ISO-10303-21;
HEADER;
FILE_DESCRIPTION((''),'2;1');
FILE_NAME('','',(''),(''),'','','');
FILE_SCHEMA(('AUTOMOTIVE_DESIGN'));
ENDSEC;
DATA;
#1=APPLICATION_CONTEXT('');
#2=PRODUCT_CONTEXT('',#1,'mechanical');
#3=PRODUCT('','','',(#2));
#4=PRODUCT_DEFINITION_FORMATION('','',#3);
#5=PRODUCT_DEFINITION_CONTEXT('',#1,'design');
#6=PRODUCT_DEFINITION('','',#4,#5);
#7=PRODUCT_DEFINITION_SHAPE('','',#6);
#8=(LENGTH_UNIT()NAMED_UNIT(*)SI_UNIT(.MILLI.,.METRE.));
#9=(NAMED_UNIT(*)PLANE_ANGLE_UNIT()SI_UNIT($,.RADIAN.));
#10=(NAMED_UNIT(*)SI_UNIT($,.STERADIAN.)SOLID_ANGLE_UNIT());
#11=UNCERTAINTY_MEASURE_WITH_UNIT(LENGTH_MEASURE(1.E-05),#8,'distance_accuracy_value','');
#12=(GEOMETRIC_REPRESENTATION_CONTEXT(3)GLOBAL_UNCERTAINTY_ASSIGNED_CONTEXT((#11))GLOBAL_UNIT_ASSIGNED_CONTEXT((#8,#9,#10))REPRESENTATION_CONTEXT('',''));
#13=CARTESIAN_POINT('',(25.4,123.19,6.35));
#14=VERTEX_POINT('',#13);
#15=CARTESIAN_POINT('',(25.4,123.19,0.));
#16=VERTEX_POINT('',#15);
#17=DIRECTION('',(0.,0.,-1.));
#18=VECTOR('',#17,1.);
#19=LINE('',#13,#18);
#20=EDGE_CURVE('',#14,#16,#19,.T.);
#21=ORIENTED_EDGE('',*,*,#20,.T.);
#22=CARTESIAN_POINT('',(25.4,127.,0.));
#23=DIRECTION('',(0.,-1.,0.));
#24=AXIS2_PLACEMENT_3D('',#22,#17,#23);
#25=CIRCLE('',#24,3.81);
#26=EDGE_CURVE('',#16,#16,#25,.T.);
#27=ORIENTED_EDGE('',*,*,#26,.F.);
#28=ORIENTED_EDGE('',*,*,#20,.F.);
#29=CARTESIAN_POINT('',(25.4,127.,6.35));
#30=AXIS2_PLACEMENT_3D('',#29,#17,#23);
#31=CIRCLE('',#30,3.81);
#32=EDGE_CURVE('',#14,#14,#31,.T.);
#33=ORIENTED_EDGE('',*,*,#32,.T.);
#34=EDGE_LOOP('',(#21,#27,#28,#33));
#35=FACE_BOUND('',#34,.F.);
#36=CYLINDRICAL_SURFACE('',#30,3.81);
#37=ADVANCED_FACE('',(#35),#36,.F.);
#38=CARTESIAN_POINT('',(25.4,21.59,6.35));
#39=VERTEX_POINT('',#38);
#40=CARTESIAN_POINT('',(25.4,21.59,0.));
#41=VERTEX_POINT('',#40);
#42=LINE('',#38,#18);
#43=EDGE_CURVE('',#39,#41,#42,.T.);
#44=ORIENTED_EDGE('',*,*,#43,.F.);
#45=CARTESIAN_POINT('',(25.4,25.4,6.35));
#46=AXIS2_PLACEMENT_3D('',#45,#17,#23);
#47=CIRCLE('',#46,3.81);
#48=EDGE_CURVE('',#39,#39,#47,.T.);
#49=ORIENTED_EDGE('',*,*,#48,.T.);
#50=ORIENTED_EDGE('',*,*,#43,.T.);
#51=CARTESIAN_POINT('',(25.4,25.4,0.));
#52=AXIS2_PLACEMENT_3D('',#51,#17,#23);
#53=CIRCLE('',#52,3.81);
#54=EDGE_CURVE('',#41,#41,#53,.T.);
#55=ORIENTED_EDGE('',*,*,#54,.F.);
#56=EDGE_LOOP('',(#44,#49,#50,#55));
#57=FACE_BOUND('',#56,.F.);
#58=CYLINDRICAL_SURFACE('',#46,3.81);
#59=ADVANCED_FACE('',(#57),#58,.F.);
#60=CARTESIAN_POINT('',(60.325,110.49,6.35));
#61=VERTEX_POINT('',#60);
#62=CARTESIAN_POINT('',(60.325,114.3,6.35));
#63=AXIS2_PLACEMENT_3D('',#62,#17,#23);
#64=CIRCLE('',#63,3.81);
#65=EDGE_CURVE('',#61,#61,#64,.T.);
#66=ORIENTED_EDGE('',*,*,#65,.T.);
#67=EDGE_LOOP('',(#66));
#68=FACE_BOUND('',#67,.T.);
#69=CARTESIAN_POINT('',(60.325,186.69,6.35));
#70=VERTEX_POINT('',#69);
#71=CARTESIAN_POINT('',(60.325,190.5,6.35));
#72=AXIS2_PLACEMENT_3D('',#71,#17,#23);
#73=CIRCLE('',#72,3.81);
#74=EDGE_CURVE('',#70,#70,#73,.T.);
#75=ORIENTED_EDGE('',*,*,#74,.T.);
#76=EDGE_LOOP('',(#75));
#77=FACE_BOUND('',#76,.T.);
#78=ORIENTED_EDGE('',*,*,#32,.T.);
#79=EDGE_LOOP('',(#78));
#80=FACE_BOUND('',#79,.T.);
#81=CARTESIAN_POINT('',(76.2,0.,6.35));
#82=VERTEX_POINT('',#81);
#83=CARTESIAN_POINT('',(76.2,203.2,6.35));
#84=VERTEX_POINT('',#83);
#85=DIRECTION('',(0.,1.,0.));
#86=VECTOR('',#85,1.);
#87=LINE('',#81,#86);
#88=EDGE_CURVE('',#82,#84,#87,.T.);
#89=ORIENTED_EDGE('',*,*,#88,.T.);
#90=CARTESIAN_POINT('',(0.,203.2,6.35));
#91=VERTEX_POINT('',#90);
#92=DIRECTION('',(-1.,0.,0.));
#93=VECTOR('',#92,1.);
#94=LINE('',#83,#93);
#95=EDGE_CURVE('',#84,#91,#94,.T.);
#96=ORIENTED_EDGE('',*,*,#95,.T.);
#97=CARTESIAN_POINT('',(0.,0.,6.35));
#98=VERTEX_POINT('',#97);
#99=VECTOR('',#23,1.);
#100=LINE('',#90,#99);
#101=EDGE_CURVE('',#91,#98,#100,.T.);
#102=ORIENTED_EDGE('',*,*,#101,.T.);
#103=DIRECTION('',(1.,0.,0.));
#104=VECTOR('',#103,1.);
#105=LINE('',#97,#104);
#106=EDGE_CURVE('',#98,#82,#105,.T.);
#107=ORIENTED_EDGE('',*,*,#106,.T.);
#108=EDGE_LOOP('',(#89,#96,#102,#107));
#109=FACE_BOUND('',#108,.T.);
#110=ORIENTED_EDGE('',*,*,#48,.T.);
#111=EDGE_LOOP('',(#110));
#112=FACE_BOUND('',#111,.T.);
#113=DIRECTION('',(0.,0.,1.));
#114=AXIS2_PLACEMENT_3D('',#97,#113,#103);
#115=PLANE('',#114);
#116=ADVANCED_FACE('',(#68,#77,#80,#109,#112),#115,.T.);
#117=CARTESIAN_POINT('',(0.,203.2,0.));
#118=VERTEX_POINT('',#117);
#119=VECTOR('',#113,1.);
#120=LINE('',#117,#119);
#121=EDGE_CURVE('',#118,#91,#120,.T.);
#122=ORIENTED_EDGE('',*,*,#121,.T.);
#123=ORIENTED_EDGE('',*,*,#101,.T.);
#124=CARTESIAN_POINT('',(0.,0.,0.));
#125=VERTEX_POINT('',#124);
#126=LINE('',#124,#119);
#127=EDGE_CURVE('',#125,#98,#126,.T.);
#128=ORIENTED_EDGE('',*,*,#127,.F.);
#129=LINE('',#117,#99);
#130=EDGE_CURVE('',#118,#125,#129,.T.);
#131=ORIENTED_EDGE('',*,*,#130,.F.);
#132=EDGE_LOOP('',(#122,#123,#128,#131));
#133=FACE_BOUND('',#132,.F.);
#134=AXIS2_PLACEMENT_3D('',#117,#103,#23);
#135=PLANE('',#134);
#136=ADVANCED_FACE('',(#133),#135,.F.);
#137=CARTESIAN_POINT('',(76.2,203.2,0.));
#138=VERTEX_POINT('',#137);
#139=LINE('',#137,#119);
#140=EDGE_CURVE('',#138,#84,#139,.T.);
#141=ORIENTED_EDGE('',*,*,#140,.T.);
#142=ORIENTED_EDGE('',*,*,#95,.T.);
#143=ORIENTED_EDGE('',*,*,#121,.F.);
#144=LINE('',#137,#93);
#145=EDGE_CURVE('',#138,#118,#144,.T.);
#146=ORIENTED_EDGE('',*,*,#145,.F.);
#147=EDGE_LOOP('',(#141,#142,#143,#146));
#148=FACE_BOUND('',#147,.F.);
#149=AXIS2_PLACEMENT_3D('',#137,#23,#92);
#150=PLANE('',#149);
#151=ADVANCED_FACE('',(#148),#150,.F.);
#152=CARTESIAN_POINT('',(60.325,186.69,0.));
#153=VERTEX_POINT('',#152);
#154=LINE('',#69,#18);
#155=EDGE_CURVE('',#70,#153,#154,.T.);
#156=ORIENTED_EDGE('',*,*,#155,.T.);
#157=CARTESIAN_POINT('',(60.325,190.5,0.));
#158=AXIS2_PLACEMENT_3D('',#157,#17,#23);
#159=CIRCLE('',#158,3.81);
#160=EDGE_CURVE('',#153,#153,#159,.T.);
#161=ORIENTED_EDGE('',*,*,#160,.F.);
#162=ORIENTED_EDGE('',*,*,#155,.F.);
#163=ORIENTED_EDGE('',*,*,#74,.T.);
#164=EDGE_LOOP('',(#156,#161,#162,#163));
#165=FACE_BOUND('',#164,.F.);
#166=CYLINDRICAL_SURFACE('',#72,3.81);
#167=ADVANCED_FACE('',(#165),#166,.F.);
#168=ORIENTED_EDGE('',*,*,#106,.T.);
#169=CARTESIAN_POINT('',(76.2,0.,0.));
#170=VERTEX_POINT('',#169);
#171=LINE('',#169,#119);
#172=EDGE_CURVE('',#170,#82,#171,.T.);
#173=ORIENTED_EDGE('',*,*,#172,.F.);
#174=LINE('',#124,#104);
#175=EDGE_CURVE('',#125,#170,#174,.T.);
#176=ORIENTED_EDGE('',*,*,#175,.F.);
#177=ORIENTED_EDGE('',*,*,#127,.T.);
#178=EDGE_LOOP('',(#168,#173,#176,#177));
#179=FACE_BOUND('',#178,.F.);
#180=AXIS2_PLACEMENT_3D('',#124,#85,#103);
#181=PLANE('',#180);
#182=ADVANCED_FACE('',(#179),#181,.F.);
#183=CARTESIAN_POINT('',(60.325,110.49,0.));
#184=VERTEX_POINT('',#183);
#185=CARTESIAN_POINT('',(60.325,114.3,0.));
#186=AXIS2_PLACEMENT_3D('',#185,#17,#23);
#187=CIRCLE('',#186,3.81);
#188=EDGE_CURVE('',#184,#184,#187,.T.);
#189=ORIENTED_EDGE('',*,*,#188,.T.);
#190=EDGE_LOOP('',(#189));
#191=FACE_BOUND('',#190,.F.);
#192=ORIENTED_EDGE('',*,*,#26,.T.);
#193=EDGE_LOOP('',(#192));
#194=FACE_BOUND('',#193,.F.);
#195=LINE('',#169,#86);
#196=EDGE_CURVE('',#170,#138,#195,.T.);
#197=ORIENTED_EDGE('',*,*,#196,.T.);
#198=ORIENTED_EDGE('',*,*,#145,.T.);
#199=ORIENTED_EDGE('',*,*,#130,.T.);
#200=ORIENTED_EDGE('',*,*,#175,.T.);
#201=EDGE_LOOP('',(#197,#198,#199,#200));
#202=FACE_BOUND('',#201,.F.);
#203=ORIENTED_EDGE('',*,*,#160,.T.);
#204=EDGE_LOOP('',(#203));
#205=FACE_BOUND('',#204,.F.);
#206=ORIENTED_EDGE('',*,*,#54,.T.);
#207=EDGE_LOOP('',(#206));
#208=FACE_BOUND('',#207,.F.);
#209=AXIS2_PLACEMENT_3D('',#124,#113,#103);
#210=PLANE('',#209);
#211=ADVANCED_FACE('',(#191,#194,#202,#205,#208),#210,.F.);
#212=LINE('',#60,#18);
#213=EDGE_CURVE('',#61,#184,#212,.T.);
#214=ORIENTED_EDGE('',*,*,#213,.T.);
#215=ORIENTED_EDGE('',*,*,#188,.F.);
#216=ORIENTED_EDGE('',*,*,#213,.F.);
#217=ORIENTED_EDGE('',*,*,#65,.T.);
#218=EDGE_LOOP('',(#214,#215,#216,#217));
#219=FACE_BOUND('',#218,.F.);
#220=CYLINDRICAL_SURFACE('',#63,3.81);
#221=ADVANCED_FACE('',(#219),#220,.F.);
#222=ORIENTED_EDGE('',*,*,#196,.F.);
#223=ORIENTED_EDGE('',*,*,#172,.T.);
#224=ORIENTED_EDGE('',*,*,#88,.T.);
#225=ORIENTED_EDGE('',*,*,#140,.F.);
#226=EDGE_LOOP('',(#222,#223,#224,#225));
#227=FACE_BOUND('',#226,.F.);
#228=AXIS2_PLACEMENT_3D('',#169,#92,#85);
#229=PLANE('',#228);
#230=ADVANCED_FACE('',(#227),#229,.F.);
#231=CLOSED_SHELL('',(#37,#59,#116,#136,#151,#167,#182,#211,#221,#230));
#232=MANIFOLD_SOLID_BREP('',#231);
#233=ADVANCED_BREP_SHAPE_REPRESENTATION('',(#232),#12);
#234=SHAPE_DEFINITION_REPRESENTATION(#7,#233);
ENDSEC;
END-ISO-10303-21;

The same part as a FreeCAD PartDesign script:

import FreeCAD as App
import Part
import Sketcher
from FreeCAD import Vector
Q = App.Units.Quantity

doc = App.newDocument("Part")
params = doc.addObject("Spreadsheet::Sheet", "Params")
for row, (alias, value) in enumerate([
    ("sketch1_width", "3 in"),
    ("sketch1_height", "8 in"),
    ("pad1_length", "0.25 in"),
    ("sketch2_diameter", "0.3 in"),
    ("hole_diameter", "0.3 in"),
], start=1):
    params.set(f"A{row}", alias)
    params.set(f"B{row}", "=" + value)
    params.setAlias(f"B{row}", alias)

body = doc.addObject("PartDesign::Body", "Body")

sketch1 = body.newObject("Sketcher::SketchObject", "Sketch")
sketch1.AttachmentSupport = (doc.getObject("XY_Plane"), [""])
sketch1.MapMode = "FlatFace"
sketch1.addGeometry([
    Part.LineSegment(Vector(0, 203, 0), Vector(0, 0, 0)),
    Part.LineSegment(Vector(0, 0, 0), Vector(76, 0, 0)),
    Part.LineSegment(Vector(76, 0, 0), Vector(76, 203, 0)),
    Part.LineSegment(Vector(76, 203, 0), Vector(0, 203, 0)),
], False)
sketch1.addConstraint([
    Sketcher.Constraint("Coincident", 0, 2, 1, 1),
    Sketcher.Constraint("Coincident", 1, 2, 2, 1),
    Sketcher.Constraint("Coincident", 2, 2, 3, 1),
    Sketcher.Constraint("Coincident", 3, 2, 0, 1),
    Sketcher.Constraint("Vertical", 0),
    Sketcher.Constraint("Horizontal", 1),
    Sketcher.Constraint("Vertical", 2),
    Sketcher.Constraint("Horizontal", 3),
    Sketcher.Constraint("Coincident", 0, 2, -1, 1),
    Sketcher.Constraint("DistanceX", 1, 1, 1, 2, Q("3 in")),
    Sketcher.Constraint("DistanceY", 0, 2, 0, 1, Q("8 in")),
])
sketch1.setExpression("Constraints[9]", "Params.sketch1_width")
sketch1.setExpression("Constraints[10]", "Params.sketch1_height")
pad1 = body.newObject("PartDesign::Pad", "Pad")
pad1.Profile = sketch1
pad1.setExpression("Length", "Params.pad1_length")

sketch2 = body.newObject("Sketcher::SketchObject", "Sketch001")
sketch2.AttachmentSupport = (doc.getObject("XY_Plane"), [""])
sketch2.MapMode = "FlatFace"
sketch2.AttachmentOffset = App.Placement(Vector(0, 0, 0.25 * 25.4), App.Rotation())
sketch2.addGeometry([
    Part.Circle(Vector(25.4, 25.4, 0), Vector(0, 0, 1), 3.8),
    Part.Circle(Vector(25.4, 127, 0), Vector(0, 0, 1), 3.8),
    Part.Circle(Vector(60.3, 190.5, 0), Vector(0, 0, 1), 3.8),
    Part.Circle(Vector(60.3, 114.3, 0), Vector(0, 0, 1), 3.8),
], False)
sketch2.addConstraint([
    Sketcher.Constraint("Equal", 0, 1),
    Sketcher.Constraint("Equal", 1, 2),
    Sketcher.Constraint("Equal", 2, 3),
    Sketcher.Constraint("Vertical", 0, 3, 1, 3),
    Sketcher.Constraint("Vertical", 2, 3, 3, 3),
    Sketcher.Constraint("Diameter", 0, Q("0.3 in")),
    Sketcher.Constraint("DistanceX", -1, 1, 0, 3, Q("1 in")),
    Sketcher.Constraint("DistanceY", -1, 1, 0, 3, Q("1 in")),
    Sketcher.Constraint("DistanceY", -1, 1, 1, 3, Q("5 in")),
    Sketcher.Constraint("DistanceY", 3, 3, 2, 3, Q("3 in")),
    Sketcher.Constraint("DistanceY", -1, 1, 2, 3, Q("7.5 in")),
    Sketcher.Constraint("DistanceX", -1, 1, 2, 3, Q("2.375 in")),
])
sketch2.setExpression("Constraints[5]", "Params.sketch2_diameter")
doc.recompute()
hole = body.newObject("PartDesign::Hole", "Hole")
hole.Profile = sketch2
hole.ThreadType = "None"
hole.setExpression("Diameter", "Params.hole_diameter")
hole.DepthType = "ThroughAll"

doc.recompute()
